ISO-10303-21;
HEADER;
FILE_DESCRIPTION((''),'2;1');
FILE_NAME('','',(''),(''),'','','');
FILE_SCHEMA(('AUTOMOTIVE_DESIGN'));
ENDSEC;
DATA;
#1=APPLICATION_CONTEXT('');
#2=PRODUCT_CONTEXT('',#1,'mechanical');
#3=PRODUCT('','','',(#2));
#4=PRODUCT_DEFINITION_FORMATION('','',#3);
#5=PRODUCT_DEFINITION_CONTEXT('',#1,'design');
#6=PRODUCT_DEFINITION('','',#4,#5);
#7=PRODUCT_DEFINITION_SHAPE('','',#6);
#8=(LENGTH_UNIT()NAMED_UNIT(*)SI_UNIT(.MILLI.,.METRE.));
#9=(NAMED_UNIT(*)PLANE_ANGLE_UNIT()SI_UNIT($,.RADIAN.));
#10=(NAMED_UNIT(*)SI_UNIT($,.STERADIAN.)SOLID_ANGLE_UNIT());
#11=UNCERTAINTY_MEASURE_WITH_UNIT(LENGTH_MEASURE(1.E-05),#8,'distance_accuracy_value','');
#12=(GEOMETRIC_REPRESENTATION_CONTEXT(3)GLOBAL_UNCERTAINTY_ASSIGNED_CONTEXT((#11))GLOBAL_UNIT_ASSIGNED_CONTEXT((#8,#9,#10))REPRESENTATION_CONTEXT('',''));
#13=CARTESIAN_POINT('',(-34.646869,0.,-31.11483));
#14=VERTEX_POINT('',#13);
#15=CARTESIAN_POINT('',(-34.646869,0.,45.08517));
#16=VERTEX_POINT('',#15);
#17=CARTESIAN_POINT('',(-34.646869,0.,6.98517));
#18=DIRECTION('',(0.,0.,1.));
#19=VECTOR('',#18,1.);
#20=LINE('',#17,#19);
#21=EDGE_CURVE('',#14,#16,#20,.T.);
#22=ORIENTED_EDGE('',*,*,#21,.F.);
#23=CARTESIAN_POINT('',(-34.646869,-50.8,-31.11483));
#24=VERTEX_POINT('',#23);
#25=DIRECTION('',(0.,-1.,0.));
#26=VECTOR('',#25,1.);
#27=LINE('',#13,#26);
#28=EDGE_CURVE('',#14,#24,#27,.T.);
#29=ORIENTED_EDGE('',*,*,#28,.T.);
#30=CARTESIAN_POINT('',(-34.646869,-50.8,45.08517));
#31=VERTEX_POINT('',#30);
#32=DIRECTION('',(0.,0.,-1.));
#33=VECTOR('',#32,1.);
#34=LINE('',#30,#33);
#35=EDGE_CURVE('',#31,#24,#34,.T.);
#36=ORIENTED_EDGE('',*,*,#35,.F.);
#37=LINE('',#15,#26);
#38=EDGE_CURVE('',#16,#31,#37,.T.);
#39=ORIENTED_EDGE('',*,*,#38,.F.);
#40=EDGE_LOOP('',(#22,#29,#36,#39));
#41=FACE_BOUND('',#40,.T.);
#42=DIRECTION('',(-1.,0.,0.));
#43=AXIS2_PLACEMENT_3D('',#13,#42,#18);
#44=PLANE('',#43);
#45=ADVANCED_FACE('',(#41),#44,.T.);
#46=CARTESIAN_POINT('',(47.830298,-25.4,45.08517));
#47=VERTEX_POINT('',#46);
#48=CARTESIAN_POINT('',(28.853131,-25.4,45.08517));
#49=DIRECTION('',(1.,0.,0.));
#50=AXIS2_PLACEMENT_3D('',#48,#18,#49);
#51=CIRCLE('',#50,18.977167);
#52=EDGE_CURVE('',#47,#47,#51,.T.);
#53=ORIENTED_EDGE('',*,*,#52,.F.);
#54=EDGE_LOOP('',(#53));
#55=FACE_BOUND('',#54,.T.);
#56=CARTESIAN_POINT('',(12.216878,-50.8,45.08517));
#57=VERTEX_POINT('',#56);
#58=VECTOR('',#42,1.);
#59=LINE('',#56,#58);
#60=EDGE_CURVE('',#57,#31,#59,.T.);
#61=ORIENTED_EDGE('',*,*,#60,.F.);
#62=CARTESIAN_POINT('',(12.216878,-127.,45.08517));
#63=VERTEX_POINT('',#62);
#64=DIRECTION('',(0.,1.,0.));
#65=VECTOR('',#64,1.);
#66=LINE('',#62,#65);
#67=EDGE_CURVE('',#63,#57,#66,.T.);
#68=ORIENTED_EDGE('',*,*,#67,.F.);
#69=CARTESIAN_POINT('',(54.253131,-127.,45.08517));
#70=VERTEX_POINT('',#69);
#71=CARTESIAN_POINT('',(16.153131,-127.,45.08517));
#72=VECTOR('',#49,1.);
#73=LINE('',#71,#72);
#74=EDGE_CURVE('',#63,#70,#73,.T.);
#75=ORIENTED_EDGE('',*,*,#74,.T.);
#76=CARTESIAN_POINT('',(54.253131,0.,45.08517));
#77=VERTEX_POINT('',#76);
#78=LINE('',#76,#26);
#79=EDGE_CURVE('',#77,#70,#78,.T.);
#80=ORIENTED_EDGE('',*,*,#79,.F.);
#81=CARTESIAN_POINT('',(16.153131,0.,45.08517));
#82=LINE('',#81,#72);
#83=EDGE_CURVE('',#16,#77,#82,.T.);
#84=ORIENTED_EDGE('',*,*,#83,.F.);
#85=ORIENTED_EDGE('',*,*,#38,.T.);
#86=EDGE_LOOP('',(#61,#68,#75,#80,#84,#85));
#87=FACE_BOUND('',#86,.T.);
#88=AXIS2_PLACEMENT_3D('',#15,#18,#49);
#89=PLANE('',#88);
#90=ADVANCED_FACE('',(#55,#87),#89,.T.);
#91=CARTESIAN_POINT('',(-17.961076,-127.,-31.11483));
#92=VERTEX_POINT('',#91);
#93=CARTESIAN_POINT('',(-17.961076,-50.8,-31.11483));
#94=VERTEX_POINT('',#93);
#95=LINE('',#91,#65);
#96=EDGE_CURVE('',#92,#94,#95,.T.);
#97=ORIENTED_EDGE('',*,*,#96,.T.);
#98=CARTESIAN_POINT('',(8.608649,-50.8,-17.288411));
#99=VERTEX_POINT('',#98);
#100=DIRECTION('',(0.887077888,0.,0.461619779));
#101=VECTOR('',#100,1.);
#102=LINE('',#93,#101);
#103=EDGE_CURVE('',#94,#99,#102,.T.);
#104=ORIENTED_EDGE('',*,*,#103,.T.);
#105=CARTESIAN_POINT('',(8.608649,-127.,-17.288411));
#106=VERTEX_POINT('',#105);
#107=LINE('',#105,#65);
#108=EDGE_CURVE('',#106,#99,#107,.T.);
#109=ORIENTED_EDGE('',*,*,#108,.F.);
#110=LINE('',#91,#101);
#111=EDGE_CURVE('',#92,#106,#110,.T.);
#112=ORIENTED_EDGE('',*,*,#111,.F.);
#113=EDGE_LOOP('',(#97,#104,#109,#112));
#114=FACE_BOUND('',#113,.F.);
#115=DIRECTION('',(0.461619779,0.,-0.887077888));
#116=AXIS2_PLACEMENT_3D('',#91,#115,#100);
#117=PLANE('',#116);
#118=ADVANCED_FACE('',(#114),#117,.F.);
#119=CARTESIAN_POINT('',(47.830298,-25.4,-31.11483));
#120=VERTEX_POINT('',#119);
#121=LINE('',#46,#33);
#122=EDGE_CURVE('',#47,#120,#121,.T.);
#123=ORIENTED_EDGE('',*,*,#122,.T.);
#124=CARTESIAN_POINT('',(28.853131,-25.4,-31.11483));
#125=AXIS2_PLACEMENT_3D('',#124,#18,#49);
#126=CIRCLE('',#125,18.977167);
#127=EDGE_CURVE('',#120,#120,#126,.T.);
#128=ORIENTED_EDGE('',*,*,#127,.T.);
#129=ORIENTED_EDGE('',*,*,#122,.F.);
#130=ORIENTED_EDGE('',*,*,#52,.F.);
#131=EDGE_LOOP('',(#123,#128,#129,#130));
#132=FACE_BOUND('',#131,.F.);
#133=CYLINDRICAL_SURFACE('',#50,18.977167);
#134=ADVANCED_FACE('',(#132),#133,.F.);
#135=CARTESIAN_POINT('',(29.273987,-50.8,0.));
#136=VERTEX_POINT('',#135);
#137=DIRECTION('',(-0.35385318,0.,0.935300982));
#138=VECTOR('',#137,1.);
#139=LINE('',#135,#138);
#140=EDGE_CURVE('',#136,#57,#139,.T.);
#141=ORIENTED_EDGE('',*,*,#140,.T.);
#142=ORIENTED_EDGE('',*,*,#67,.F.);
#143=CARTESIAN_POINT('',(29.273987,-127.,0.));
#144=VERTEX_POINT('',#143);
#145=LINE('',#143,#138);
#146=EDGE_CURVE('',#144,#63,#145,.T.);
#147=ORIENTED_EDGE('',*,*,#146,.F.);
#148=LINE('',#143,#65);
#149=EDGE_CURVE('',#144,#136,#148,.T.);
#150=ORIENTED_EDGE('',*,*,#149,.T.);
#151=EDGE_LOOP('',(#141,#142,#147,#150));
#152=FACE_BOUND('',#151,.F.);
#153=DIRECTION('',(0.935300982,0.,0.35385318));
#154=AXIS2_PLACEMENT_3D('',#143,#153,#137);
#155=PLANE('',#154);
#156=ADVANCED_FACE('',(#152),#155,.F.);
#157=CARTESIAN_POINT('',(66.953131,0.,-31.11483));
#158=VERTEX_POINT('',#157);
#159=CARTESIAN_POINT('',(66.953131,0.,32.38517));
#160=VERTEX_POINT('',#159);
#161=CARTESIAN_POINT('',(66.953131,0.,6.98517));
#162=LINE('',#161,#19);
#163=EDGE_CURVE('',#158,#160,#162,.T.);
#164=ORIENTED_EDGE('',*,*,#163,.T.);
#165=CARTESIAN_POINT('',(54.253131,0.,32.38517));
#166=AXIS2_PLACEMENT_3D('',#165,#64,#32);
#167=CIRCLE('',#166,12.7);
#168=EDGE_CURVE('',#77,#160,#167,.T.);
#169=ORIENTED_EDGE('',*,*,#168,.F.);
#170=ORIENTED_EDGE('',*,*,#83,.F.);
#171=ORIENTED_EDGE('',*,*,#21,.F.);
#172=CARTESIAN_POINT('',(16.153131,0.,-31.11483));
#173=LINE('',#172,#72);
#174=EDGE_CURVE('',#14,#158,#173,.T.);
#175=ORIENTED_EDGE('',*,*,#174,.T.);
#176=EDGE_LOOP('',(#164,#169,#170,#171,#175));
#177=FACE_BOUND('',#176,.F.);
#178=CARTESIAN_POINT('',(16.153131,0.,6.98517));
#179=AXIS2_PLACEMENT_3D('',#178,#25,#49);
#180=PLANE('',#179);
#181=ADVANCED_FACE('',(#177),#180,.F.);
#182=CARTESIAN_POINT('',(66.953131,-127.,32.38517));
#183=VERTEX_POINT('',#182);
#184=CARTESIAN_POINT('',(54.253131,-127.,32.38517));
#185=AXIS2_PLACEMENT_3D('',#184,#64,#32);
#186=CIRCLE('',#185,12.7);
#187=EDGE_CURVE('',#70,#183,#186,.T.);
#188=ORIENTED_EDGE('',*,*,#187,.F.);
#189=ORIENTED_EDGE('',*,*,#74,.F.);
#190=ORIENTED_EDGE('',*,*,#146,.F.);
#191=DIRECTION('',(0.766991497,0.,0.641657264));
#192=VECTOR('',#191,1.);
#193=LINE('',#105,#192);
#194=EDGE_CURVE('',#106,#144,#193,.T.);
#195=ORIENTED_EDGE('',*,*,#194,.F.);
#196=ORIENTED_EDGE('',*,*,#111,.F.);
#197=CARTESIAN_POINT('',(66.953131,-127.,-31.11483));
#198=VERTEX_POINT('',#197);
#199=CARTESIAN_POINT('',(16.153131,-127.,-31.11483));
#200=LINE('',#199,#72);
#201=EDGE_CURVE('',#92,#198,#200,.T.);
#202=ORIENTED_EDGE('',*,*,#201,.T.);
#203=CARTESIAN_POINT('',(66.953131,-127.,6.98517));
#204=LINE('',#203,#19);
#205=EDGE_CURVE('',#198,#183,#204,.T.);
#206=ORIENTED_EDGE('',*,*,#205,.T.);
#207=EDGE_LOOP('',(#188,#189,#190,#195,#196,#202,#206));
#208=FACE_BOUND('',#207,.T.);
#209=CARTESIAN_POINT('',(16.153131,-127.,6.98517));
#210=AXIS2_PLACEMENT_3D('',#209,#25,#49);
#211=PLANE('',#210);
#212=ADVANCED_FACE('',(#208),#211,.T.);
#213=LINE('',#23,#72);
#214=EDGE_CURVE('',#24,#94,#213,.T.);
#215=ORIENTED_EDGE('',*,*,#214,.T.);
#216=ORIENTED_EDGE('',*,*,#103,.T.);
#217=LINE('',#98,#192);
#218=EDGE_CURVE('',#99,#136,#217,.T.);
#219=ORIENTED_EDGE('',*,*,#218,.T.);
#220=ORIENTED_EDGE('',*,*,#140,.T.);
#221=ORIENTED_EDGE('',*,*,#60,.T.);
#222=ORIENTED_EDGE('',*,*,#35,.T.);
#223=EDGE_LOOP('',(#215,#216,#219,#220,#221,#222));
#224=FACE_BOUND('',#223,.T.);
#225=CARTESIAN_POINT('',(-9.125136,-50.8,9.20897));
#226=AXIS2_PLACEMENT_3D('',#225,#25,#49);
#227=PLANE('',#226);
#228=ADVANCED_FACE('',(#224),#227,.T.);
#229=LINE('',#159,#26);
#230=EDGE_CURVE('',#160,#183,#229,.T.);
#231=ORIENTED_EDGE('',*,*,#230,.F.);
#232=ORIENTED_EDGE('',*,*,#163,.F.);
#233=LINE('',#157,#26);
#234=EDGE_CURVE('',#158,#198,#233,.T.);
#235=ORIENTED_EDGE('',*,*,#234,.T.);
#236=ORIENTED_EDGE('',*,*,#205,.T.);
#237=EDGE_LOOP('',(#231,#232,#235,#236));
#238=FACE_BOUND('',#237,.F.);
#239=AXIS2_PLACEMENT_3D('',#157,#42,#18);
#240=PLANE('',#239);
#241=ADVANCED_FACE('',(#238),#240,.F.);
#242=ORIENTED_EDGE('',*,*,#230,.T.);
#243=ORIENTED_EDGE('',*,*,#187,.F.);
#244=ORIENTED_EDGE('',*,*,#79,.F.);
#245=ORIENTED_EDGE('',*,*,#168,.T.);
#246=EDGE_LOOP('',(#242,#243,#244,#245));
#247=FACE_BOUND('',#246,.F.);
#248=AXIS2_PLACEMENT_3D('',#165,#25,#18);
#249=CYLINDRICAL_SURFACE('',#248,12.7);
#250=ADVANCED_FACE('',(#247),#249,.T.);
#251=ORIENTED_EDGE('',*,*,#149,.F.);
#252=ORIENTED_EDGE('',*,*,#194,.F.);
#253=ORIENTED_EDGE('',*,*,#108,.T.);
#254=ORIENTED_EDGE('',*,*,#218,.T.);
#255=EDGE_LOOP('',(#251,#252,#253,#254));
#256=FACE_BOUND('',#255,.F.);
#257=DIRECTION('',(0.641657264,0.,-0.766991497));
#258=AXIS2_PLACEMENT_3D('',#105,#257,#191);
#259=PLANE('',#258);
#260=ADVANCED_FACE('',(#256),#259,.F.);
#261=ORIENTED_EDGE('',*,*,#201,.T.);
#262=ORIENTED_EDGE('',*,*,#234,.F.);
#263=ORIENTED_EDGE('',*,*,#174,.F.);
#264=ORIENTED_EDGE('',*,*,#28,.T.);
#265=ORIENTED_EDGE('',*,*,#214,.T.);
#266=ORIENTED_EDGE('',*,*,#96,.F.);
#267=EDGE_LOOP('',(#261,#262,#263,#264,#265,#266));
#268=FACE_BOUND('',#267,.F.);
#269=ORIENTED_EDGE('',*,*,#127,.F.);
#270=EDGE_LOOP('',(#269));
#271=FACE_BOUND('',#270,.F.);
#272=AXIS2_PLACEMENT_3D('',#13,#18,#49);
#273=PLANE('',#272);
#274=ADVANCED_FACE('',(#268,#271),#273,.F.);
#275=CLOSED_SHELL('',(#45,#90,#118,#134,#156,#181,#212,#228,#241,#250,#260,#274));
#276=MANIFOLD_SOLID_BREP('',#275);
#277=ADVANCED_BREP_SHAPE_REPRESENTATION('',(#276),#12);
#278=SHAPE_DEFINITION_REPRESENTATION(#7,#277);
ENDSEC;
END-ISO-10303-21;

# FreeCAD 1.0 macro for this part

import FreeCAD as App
import Part
import Sketcher
from FreeCAD import Vector
Q = App.Units.Quantity


def edges_at(feature, points):
    """Names of the edges that pass closest to the given points."""
    edges = feature.Shape.Edges
    near = lambda p: min(range(len(edges)), key=lambda i: edges[i].distToShape(Part.Vertex(*p))[0])
    return sorted({f"Edge{near(p) + 1}" for p in points})

doc = App.newDocument("Part")
params = doc.addObject("Spreadsheet::Sheet", "Params")
for row, (alias, value) in enumerate([
    ("sketch1_width", "4 in"),
    ("sketch1_height", "3 in"),
    ("pad1_length", "5 in"),
    ("sketch2_height", "3 in"),
    ("pocket1_length", "3 in"),
    ("fillet_radius", "0.5 in"),
    ("pocket2_length", "50 in"),
], start=1):
    params.set(f"A{row}", alias)
    params.set(f"B{row}", "=" + value)
    params.setAlias(f"B{row}", alias)

body = doc.addObject("PartDesign::Body", "Body")

# Sketch on XZ plane
sketch1 = doc.addObject("Sketcher::SketchObject", "Sketch")
body.addObject(sketch1)
sketch1.AttachmentSupport = (doc.XZ_Plane, [""])
sketch1.MapMode = "FlatFace"
sketch1.addGeometry(Part.LineSegment(Vector(-34.646869, 45.08517, 0), Vector(-34.646869, -31.11483, 0)), False)
sketch1.addGeometry(Part.LineSegment(Vector(-34.646869, -31.11483, 0), Vector(66.953131, -31.11483, 0)), False)
sketch1.addGeometry(Part.LineSegment(Vector(66.953131, -31.11483, 0), Vector(66.953131, 45.08517, 0)), False)
sketch1.addGeometry(Part.LineSegment(Vector(66.953131, 45.08517, 0), Vector(-34.646869, 45.08517, 0)), False)
sketch1.addConstraint(Sketcher.Constraint("Coincident", 0, 2, 1, 1))
sketch1.addConstraint(Sketcher.Constraint("Coincident", 1, 2, 2, 1))
sketch1.addConstraint(Sketcher.Constraint("Coincident", 2, 2, 3, 1))
sketch1.addConstraint(Sketcher.Constraint("Coincident", 3, 2, 0, 1))
sketch1.addConstraint(Sketcher.Constraint("Vertical", 0))
sketch1.addConstraint(Sketcher.Constraint("Horizontal", 1))
sketch1.addConstraint(Sketcher.Constraint("Vertical", 2))
sketch1.addConstraint(Sketcher.Constraint("Horizontal", 3))
sketch1.addConstraint(Sketcher.Constraint("DistanceX", 1, 1, 1, 2, Q("4 in")))
sketch1.addConstraint(Sketcher.Constraint("DistanceY", 0, 2, 0, 1, Q("3 in")))
sketch1.addConstraint(Sketcher.Constraint("DistanceX", 0, 2, -1, 1, 34.646869))
sketch1.addConstraint(Sketcher.Constraint("DistanceY", 0, 2, -1, 1, 31.11483))
sketch1.setExpression("Constraints[8]", "Params.sketch1_width")
sketch1.setExpression("Constraints[9]", "Params.sketch1_height")
pad1 = doc.addObject("PartDesign::Pad", "Pad")
body.addObject(pad1)
pad1.Profile = sketch1
pad1.setExpression("Length", "Params.pad1_length")

# Sketch on XZ plane
sketch2 = doc.addObject("Sketcher::SketchObject", "Sketch001")
body.addObject(sketch2)
sketch2.AttachmentSupport = (doc.XZ_Plane, [""])
sketch2.MapMode = "FlatFace"
sketch2.AttachmentOffset = App.Placement(Vector(0, 0, 5 * 25.4), App.Rotation())
sketch2.addGeometry(Part.LineSegment(Vector(12.216878, 45.08517, 0), Vector(-34.646869, 45.08517, 0)), False)
sketch2.addGeometry(Part.LineSegment(Vector(-34.646869, 45.08517, 0), Vector(-34.646869, -31.11483, 0)), False)
sketch2.addGeometry(Part.LineSegment(Vector(-34.646869, -31.11483, 0), Vector(-17.961076, -31.11483, 0)), False)
sketch2.addGeometry(Part.LineSegment(Vector(-17.961076, -31.11483, 0), Vector(8.608649, -17.288411, 0)), False)
sketch2.addGeometry(Part.LineSegment(Vector(8.608649, -17.288411, 0), Vector(29.273987, 0, 0)), False)
sketch2.addGeometry(Part.LineSegment(Vector(29.273987, 0, 0), Vector(12.216878, 45.08517, 0)), False)
sketch2.addConstraint(Sketcher.Constraint("Coincident", 0, 2, 1, 1))
sketch2.addConstraint(Sketcher.Constraint("Coincident", 1, 2, 2, 1))
sketch2.addConstraint(Sketcher.Constraint("Coincident", 2, 2, 3, 1))
sketch2.addConstraint(Sketcher.Constraint("Coincident", 3, 2, 4, 1))
sketch2.addConstraint(Sketcher.Constraint("Coincident", 4, 2, 5, 1))
sketch2.addConstraint(Sketcher.Constraint("Coincident", 5, 2, 0, 1))
sketch2.addConstraint(Sketcher.Constraint("Horizontal", 0))
sketch2.addConstraint(Sketcher.Constraint("Vertical", 1))
sketch2.addConstraint(Sketcher.Constraint("Horizontal", 2))
sketch2.addConstraint(Sketcher.Constraint("PointOnObject", 4, 2, -1))
sketch2.addConstraint(Sketcher.Constraint("DistanceY", 1, 2, 1, 1, Q("3 in")))
sketch2.addConstraint(Sketcher.Constraint("DistanceX", 0, 2, 0, 1, 46.863747))
sketch2.addConstraint(Sketcher.Constraint("DistanceX", 2, 1, 2, 2, 16.685793))
sketch2.addConstraint(Sketcher.Constraint("DistanceX", 0, 2, -1, 1, 34.646869))
sketch2.addConstraint(Sketcher.Constraint("DistanceY", -1, 1, 0, 2, 45.08517))
sketch2.addConstraint(Sketcher.Constraint("DistanceX", -1, 1, 3, 2, 8.608649))
sketch2.addConstraint(Sketcher.Constraint("DistanceY", 3, 2, -1, 1, 17.288411))
sketch2.addConstraint(Sketcher.Constraint("DistanceX", 3, 2, 4, 2, 20.665338))
sketch2.setExpression("Constraints[10]", "Params.sketch2_height")
pocket1 = doc.addObject("PartDesign::Pocket", "Pocket")
body.addObject(pocket1)
pocket1.Profile = sketch2
pocket1.setExpression("Length", "Params.pocket1_length")
doc.recompute()

fillet = doc.addObject("PartDesign::Fillet", "Fillet")
body.addObject(fillet)
fillet.Base = (pocket1, edges_at(pocket1, [(66.953, -63.5, 45.085)]))
fillet.setExpression("Radius", "Params.fillet_radius")

# Sketch on XY plane
sketch3 = doc.addObject("Sketcher::SketchObject", "Sketch002")
body.addObject(sketch3)
sketch3.AttachmentSupport = (doc.XY_Plane, [""])
sketch3.MapMode = "FlatFace"
sketch3.AttachmentOffset = App.Placement(Vector(0, 0, 45.08517), App.Rotation())
sketch3.addGeometry(Part.Circle(Vector(28.853131, -25.4, 0), Vector(0, 0, 1), 18.977167), False)
sketch3.addConstraint(Sketcher.Constraint("DistanceY", 0, 3, -1, 1, Q("1 in")))
sketch3.addConstraint(Sketcher.Constraint("Diameter", 0, 37.954334))
sketch3.addConstraint(Sketcher.Constraint("DistanceX", -1, 1, 0, 3, 28.853131))
pocket2 = doc.addObject("PartDesign::Pocket", "Pocket001")
body.addObject(pocket2)
pocket2.Profile = sketch3
pocket2.setExpression("Length", "Params.pocket2_length")

doc.recompute()
